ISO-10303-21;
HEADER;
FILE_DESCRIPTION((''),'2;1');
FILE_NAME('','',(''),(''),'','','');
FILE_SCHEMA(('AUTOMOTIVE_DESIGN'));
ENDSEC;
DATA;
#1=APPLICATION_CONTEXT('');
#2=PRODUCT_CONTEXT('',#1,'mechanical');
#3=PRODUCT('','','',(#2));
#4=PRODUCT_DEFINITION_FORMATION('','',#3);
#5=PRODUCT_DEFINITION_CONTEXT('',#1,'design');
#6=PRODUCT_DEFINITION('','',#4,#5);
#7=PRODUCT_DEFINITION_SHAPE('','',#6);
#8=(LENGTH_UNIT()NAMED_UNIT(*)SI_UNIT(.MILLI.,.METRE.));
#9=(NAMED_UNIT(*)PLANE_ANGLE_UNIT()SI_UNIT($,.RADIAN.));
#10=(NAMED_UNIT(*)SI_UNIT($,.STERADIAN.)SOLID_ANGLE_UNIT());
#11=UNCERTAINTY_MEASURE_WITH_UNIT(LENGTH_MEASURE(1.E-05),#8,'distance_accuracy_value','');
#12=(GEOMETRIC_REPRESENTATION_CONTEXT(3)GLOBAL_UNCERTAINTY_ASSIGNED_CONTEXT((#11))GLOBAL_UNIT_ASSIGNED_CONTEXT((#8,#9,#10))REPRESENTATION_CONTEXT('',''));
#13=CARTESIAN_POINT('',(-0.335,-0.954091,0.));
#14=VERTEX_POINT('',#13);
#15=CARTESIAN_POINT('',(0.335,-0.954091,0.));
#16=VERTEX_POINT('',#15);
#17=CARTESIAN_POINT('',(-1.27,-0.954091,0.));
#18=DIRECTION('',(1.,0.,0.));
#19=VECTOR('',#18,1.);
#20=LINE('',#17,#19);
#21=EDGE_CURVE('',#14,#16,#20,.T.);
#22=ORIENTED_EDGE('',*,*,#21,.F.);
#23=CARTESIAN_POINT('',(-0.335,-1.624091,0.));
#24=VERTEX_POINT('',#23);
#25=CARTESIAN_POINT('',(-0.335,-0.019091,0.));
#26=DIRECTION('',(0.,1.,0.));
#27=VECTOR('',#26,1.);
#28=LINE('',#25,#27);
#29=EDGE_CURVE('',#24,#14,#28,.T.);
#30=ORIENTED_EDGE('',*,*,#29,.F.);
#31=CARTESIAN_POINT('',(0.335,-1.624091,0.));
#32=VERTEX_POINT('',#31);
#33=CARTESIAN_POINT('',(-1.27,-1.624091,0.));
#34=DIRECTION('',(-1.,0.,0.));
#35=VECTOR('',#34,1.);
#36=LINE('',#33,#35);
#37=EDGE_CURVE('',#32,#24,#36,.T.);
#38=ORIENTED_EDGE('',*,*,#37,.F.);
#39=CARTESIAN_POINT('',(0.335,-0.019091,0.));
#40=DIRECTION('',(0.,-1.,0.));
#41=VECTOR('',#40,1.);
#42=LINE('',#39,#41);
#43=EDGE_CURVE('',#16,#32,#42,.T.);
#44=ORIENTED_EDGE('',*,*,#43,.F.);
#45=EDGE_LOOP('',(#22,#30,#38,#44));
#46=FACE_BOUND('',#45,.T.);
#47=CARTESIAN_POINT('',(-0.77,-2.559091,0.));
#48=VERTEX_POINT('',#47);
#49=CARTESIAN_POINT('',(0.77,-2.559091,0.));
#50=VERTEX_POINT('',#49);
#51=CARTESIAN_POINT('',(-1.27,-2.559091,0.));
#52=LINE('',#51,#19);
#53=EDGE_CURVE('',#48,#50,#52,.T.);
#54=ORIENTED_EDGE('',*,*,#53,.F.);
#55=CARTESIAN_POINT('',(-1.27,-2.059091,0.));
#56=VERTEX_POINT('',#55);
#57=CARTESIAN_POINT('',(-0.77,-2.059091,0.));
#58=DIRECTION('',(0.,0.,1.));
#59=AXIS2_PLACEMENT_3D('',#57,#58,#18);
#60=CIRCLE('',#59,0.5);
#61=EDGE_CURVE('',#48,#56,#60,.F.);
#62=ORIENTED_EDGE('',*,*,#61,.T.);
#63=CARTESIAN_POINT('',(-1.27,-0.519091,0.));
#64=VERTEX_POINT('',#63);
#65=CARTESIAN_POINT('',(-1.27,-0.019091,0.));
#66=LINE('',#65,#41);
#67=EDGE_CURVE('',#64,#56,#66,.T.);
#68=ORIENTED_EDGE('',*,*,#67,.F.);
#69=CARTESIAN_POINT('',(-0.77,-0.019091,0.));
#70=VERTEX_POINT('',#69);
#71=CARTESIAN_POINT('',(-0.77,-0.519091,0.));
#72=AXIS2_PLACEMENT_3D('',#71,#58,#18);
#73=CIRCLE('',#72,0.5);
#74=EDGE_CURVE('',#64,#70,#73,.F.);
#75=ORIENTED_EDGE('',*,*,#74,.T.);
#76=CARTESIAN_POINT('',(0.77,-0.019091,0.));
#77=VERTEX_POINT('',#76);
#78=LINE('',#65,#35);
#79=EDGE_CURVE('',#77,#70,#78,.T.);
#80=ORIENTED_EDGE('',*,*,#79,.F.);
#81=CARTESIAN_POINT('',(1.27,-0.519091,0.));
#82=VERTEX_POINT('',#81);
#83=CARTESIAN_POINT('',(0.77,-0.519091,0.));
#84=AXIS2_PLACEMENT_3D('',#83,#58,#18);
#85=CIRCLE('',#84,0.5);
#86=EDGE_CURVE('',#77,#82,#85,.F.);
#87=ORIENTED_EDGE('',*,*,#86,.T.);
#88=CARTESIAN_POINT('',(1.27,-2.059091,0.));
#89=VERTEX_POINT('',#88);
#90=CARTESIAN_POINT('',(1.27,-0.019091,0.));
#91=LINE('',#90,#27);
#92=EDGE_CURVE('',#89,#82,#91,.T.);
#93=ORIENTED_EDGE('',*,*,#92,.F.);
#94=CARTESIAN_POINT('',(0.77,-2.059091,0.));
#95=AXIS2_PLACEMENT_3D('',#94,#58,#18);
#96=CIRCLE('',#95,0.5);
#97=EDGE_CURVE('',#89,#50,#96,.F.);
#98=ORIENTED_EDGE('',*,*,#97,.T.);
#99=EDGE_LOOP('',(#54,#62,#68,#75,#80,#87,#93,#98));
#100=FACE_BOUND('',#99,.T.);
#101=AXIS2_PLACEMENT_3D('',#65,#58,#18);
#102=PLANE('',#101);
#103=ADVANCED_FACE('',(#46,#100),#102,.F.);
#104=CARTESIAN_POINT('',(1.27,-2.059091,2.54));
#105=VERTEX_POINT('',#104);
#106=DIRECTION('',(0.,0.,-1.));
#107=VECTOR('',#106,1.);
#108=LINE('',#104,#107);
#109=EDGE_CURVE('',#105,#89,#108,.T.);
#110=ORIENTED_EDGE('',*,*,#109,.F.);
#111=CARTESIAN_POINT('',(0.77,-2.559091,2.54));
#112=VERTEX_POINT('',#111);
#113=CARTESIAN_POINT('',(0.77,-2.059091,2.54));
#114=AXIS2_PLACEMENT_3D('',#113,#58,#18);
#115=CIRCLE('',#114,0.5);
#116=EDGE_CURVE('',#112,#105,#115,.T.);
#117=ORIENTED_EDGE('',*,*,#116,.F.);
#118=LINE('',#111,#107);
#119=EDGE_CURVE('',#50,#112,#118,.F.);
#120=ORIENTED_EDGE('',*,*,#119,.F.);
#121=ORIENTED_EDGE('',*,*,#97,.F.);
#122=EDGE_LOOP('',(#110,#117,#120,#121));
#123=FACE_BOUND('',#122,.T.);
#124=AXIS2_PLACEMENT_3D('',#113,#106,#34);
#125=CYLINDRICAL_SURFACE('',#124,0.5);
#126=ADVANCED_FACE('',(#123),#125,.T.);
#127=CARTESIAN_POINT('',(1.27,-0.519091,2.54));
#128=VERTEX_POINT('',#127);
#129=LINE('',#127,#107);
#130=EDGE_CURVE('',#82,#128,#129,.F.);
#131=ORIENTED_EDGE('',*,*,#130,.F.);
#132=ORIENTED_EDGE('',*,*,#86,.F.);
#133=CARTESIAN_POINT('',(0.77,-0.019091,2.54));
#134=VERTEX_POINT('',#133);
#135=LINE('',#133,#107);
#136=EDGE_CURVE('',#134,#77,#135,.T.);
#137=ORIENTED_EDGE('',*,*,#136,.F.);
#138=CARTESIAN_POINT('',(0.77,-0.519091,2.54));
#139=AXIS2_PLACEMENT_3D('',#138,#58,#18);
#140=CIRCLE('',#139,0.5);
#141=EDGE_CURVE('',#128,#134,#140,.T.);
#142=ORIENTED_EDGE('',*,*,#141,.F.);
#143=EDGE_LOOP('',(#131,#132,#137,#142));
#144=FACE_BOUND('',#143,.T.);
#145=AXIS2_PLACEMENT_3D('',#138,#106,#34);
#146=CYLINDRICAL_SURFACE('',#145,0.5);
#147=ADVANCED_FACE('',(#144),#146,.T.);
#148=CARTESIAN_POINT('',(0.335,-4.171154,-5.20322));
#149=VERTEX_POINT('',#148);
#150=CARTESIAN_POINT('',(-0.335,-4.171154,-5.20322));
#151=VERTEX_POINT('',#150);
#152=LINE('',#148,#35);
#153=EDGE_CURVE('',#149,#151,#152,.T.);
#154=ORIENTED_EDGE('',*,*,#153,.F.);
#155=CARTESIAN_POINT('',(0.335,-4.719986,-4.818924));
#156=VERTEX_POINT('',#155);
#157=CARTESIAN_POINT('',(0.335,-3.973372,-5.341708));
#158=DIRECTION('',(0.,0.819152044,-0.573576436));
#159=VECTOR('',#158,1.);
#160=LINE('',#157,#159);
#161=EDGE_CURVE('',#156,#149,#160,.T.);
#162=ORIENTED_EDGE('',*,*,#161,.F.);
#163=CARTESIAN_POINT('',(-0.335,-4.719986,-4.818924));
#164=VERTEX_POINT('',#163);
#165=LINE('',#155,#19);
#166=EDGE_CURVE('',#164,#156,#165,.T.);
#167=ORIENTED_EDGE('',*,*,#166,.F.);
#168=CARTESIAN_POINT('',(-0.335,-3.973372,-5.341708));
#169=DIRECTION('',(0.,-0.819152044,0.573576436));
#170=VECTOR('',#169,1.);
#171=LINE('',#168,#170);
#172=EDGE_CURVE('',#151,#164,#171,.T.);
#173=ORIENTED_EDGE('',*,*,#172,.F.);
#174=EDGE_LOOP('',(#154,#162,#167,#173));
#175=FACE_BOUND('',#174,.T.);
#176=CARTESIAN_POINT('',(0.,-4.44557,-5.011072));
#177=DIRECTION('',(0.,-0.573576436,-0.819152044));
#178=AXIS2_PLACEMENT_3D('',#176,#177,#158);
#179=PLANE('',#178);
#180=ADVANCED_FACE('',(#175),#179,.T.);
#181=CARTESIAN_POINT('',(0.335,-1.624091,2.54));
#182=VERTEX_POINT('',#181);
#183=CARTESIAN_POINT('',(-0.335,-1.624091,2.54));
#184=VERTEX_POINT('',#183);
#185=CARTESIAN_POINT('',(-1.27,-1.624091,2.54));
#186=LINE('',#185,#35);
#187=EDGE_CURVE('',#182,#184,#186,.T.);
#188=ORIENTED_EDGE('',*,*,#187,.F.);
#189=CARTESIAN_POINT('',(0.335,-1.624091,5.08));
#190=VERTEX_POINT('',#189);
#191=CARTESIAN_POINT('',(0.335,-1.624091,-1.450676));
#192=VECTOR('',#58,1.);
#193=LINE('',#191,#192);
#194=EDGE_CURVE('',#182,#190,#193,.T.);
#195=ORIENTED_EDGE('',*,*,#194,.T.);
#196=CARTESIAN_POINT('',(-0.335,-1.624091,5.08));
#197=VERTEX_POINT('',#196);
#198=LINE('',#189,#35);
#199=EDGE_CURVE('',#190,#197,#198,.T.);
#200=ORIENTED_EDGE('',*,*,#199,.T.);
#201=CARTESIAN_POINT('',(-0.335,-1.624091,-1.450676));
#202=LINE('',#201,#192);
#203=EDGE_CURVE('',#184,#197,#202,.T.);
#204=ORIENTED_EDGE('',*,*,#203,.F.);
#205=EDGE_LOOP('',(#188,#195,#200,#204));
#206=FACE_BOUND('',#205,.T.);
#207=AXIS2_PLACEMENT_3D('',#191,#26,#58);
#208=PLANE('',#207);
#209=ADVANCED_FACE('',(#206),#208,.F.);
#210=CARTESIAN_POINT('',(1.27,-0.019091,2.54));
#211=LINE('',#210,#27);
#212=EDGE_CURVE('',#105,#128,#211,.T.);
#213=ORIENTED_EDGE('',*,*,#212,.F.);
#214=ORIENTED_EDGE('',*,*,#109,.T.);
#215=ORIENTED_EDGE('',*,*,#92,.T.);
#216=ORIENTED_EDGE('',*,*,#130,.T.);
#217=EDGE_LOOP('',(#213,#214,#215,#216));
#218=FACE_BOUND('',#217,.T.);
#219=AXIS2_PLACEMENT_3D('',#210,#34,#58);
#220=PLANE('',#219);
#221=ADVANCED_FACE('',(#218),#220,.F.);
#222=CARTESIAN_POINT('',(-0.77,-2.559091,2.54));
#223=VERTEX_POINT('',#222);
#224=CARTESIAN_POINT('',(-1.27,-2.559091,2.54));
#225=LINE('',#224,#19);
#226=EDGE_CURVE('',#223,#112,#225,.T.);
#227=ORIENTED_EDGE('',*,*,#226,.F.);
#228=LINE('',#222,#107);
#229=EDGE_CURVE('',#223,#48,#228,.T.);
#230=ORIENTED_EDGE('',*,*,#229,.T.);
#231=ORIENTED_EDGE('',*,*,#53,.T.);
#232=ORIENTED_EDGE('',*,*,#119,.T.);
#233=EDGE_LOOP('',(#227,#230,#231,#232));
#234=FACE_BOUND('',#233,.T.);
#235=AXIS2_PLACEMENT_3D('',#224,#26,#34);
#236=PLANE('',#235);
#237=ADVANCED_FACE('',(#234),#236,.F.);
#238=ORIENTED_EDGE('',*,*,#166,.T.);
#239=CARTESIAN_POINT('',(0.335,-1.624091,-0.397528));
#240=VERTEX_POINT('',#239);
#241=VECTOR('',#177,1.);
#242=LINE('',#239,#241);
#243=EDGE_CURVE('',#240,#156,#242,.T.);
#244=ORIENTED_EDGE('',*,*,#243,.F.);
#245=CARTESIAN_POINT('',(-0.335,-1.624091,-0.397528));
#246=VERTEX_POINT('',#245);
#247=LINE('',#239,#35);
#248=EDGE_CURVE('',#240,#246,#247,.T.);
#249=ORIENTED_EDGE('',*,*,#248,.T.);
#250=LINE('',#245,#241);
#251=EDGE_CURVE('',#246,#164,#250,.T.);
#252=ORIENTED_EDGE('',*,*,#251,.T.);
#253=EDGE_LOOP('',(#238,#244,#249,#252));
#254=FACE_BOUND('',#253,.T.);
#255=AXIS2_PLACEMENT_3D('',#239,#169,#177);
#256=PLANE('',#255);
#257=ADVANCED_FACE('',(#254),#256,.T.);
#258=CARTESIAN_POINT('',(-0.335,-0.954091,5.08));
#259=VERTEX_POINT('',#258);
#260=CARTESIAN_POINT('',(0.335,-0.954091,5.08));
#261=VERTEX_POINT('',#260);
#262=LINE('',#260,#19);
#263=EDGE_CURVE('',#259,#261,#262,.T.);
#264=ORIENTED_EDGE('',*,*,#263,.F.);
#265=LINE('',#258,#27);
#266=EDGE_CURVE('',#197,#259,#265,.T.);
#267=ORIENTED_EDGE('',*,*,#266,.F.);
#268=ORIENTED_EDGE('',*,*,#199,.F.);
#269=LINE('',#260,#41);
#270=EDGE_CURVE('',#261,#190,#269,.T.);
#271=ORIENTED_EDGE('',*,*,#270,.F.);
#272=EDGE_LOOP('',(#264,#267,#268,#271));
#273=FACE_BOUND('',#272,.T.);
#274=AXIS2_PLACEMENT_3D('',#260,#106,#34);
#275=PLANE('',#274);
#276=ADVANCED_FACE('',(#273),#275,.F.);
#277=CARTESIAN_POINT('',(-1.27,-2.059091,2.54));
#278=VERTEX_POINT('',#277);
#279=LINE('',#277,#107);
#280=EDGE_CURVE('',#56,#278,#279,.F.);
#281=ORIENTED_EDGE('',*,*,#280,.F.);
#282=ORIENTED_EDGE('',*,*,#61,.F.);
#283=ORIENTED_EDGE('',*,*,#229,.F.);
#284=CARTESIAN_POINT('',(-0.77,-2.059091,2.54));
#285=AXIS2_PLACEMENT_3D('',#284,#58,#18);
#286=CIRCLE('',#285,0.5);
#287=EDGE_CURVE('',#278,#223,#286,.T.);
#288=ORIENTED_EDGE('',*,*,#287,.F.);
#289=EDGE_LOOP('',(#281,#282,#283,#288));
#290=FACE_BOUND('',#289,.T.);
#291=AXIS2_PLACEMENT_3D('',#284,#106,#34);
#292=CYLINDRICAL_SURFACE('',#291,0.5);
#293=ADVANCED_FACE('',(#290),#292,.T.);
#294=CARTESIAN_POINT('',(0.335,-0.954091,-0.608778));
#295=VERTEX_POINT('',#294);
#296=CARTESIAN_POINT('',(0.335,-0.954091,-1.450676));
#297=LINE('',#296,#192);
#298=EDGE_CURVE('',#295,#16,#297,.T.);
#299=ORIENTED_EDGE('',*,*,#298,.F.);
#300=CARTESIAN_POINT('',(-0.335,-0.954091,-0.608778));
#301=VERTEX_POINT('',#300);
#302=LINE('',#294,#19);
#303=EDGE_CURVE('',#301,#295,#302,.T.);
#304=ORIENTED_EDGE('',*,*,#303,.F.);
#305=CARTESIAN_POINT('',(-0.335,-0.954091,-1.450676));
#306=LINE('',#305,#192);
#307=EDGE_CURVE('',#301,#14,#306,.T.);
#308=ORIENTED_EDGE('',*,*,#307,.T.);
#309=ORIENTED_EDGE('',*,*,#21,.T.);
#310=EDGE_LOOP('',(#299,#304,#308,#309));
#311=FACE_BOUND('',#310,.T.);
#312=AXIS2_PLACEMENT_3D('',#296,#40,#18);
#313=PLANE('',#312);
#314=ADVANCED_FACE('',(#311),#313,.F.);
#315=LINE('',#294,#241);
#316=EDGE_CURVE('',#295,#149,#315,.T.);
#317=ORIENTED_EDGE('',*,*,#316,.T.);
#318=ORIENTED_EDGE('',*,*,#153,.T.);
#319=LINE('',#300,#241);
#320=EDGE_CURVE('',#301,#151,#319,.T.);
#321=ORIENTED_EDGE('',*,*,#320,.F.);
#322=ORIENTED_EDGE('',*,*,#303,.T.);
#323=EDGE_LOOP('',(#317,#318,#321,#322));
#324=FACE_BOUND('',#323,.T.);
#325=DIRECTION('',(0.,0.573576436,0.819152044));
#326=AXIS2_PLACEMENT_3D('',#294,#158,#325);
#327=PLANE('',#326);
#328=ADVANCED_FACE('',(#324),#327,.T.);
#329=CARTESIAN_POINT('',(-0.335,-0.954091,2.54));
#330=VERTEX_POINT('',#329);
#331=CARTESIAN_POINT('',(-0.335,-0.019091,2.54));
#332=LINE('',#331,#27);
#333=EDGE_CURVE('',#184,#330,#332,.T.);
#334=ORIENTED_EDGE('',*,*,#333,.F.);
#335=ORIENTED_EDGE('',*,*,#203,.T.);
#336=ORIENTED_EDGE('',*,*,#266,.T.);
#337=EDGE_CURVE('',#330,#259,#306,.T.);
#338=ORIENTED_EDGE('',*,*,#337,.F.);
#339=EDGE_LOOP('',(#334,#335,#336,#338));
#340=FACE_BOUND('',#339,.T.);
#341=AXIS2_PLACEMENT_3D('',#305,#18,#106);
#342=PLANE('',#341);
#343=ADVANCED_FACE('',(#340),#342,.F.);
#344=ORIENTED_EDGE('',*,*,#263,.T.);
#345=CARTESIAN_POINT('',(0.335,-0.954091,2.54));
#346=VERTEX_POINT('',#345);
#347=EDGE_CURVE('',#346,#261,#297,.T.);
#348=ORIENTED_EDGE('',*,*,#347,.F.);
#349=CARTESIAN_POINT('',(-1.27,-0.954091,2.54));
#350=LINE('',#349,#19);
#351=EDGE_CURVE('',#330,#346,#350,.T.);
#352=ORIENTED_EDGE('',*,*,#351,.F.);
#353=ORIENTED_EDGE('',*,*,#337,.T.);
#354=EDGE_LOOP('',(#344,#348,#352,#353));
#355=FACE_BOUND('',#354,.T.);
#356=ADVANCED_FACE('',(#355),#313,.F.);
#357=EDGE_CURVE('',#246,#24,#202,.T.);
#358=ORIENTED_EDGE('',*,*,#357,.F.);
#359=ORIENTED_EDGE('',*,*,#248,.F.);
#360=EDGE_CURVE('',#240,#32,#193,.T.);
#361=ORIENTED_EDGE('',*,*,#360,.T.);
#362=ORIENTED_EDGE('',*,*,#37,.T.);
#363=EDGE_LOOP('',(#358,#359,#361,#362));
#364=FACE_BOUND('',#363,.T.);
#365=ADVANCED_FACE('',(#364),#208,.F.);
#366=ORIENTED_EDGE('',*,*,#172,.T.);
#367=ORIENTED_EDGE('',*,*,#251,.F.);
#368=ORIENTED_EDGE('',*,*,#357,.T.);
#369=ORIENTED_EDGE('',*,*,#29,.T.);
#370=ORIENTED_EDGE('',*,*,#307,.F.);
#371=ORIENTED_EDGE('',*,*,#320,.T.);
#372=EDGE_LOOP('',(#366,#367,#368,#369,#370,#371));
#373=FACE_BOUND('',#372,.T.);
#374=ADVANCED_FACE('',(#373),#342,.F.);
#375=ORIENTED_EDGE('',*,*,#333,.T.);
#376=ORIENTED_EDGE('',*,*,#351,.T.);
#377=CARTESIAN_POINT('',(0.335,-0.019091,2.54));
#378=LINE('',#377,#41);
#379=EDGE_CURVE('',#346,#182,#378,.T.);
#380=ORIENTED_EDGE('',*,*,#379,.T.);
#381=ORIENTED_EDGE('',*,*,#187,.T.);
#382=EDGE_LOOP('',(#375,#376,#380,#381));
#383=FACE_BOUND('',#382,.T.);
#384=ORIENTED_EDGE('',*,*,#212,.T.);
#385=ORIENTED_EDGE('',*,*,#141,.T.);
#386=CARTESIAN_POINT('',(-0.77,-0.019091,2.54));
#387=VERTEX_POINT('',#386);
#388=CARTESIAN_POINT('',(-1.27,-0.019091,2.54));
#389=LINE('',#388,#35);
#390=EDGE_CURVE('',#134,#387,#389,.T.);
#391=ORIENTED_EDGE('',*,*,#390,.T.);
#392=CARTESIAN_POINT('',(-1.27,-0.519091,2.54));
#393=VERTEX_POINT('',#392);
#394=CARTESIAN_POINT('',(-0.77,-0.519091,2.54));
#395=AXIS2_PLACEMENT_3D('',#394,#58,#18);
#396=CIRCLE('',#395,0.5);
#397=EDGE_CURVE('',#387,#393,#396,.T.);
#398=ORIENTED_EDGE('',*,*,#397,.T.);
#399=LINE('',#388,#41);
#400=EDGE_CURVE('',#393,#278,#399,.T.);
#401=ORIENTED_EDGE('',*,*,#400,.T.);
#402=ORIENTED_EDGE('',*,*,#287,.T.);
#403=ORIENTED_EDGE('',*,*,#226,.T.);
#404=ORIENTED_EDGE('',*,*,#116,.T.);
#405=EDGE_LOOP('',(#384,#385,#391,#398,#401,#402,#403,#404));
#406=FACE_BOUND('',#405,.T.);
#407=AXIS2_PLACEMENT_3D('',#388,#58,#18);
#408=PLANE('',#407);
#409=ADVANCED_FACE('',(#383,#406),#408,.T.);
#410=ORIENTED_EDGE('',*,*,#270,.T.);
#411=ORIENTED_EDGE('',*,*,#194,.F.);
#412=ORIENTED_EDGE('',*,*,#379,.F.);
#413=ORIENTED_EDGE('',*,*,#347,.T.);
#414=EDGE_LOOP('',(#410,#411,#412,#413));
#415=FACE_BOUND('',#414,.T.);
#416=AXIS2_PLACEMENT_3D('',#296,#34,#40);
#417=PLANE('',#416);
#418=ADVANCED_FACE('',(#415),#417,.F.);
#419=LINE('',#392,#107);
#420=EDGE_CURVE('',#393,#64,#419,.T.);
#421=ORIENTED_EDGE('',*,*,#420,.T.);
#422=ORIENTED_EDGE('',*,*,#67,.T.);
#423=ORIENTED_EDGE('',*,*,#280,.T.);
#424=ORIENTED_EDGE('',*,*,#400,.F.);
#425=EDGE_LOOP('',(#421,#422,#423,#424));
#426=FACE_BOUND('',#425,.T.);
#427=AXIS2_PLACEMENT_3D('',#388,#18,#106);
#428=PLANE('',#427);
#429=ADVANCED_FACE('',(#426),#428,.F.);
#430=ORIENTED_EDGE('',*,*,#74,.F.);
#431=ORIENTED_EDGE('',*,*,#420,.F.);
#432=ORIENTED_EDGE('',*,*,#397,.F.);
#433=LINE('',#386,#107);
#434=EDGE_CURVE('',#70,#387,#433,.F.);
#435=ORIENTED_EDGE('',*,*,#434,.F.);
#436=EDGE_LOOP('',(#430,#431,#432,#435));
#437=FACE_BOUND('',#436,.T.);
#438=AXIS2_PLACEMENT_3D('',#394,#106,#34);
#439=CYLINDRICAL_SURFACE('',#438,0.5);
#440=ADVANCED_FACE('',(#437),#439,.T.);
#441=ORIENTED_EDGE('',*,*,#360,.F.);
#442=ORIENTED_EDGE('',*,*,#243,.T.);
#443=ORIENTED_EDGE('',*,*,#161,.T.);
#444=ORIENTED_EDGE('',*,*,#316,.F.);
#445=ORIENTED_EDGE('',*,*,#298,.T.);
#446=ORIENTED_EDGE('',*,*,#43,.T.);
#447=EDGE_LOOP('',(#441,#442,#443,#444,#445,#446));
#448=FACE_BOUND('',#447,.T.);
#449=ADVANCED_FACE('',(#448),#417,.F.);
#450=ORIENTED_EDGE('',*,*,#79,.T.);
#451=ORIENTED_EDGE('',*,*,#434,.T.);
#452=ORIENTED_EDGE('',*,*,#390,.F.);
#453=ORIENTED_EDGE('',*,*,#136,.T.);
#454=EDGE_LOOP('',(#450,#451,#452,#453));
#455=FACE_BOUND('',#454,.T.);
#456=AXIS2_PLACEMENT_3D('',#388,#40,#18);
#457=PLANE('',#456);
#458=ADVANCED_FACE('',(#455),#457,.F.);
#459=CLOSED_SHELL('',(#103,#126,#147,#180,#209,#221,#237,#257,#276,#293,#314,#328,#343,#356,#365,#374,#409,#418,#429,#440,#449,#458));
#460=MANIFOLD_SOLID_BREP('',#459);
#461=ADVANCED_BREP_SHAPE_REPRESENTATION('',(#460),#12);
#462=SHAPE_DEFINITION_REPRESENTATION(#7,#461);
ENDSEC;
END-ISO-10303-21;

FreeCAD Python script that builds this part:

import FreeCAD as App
import Part
import Sketcher

V = App.Vector
Q = App.Units.Quantity


def edges_at(feature, points):
    """Names of the edges that pass closest to the given points."""
    edges = feature.Shape.Edges
    near = lambda p: min(range(len(edges)), key=lambda i: edges[i].distToShape(Part.Vertex(*p))[0])
    return sorted({f"Edge{near(p) + 1}" for p in points})


def add_polygon(sketch, points):
    """Adds a closed chain of lines whose ends are joined by coincident constraints."""
    first, n = sketch.GeometryCount, len(points)
    for a, b in zip(points, points[1:] + points[:1]):
        sketch.addGeometry(Part.LineSegment(App.Vector(*a, 0), App.Vector(*b, 0)), False)
    for i in range(n):
        sketch.addConstraint(Sketcher.Constraint("Coincident", first + i, 2, first + (i + 1) % n, 1))

doc = App.newDocument("Part")
params = doc.addObject("Spreadsheet::Sheet", "Params")
for row, (alias, value) in enumerate([
    ("sketch1_width", "2.54 mm"),
    ("pad1_length", "2.54 mm"),
    ("sketch2_width", "0.67 mm"),
    ("sketch3_length", "5.5 mm"),
    ("sketch3_height", "5.58 mm"),
    ("fillet_radius", "0.5 mm"),
], start=1):
    params.set(f"A{row}", alias)
    params.set(f"B{row}", "=" + value)
    params.setAlias(f"B{row}", alias)

body = doc.addObject("PartDesign::Body", "Body")

# Sketch on XY plane
sketch1 = body.newObject("Sketcher::SketchObject", "Sketch")
sketch1.AttachmentSupport = (doc.getObject("XY_Plane"), [""])
sketch1.MapMode = "FlatFace"
add_polygon(sketch1, [(-1.27, -0.019091), (-1.27, -2.559091), (1.27, -2.559091), (1.27, -0.019091)])  # lines 0-3
sketch1.addConstraint([
    Sketcher.Constraint("Vertical", 0),
    Sketcher.Constraint("Horizontal", 1),
    Sketcher.Constraint("Vertical", 2),
    Sketcher.Constraint("Horizontal", 3),
    Sketcher.Constraint("Equal", 3, 0),
    Sketcher.Constraint("DistanceX", 1, 1, 1, 2, Q("2.54 mm")),
    Sketcher.Constraint("DistanceX", 0, 2, -1, 1, Q("1.27 mm")),
    Sketcher.Constraint("DistanceY", 0, 2, -1, 1, Q("2.559091 mm")),
])
sketch1.setExpression("Constraints[9]", "Params.sketch1_width")
pad1 = body.newObject("PartDesign::Pad", "Pad")
pad1.Profile = sketch1
pad1.setExpression("Length", "Params.pad1_length")

# Sketch on XY plane
sketch2 = body.newObject("Sketcher::SketchObject", "Sketch001")
sketch2.AttachmentSupport = (doc.getObject("XY_Plane"), [""])
sketch2.MapMode = "FlatFace"
sketch2.AttachmentOffset = App.Placement(V(0, 0, 5.08), App.Rotation())
add_polygon(sketch2, [(0.335, -0.954091), (0.335, -1.624091), (-0.335, -1.624091), (-0.335, -0.954091)])  # lines 0-3
sketch2.addConstraint([
    Sketcher.Constraint("Vertical", 0),
    Sketcher.Constraint("Horizontal", 1),
    Sketcher.Constraint("Vertical", 2),
    Sketcher.Constraint("Horizontal", 3),
    Sketcher.Constraint("Equal", 3, 0),
    Sketcher.Constraint("DistanceX", 1, 2, 1, 1, Q("0.67 mm")),
    Sketcher.Constraint("DistanceX", -1, 1, 0, 2, Q("0.335 mm")),
    Sketcher.Constraint("DistanceY", 0, 2, -1, 1, Q("1.624091 mm")),
])
sketch2.setExpression("Constraints[9]", "Params.sketch2_width")

# Sketch on YZ plane
sketch3 = body.newObject("Sketcher::SketchObject", "Sketch002")
sketch3.AttachmentSupport = (doc.getObject("YZ_Plane"), [""])
sketch3.MapMode = "FlatFace"
sketch3.addGeometry([
    Part.LineSegment(V(-1.299091, 5.08, 0), V(-1.299091, -0.5, 0)),
    Part.LineSegment(V(-1.299091, -0.5, 0), V(-4.453761, -5.005336, 0)),
], False)
sketch3.addConstraint([
    Sketcher.Constraint("Coincident", 0, 2, 1, 1),
    Sketcher.Constraint("Vertical", 0),
    Sketcher.Constraint("Angle", 1, Q("-125 deg")),
    Sketcher.Constraint("Distance", 1, Q("5.5 mm")),
    Sketcher.Constraint("DistanceY", 0, 2, 0, 1, Q("5.58 mm")),
    Sketcher.Constraint("DistanceY", 0, 2, -1, 1, Q("0.5 mm")),
    Sketcher.Constraint("DistanceX", 0, 1, -1, 1, Q("1.299091 mm")),
])
sketch3.setExpression("Constraints[3]", "Params.sketch3_length")
sketch3.setExpression("Constraints[4]", "Params.sketch3_height")
doc.recompute()

additivepipe = body.newObject("PartDesign::AdditivePipe", "AdditivePipe")
additivepipe.Profile = sketch2
additivepipe.Spine = (sketch3, ["Edge1", "Edge2"])
additivepipe.Transition = "Right corner"
doc.recompute()

fillet = body.newObject("PartDesign::Fillet", "Fillet")
fillet.Base = (additivepipe, edges_at(additivepipe, [
    (-1.27, -0.019, 1.27),
    (1.27, -0.019, 1.27),
    (1.27, -2.559, 1.27),
    (-1.27, -2.559, 1.27),
]))
fillet.setExpression("Radius", "Params.fillet_radius")

doc.recompute()
